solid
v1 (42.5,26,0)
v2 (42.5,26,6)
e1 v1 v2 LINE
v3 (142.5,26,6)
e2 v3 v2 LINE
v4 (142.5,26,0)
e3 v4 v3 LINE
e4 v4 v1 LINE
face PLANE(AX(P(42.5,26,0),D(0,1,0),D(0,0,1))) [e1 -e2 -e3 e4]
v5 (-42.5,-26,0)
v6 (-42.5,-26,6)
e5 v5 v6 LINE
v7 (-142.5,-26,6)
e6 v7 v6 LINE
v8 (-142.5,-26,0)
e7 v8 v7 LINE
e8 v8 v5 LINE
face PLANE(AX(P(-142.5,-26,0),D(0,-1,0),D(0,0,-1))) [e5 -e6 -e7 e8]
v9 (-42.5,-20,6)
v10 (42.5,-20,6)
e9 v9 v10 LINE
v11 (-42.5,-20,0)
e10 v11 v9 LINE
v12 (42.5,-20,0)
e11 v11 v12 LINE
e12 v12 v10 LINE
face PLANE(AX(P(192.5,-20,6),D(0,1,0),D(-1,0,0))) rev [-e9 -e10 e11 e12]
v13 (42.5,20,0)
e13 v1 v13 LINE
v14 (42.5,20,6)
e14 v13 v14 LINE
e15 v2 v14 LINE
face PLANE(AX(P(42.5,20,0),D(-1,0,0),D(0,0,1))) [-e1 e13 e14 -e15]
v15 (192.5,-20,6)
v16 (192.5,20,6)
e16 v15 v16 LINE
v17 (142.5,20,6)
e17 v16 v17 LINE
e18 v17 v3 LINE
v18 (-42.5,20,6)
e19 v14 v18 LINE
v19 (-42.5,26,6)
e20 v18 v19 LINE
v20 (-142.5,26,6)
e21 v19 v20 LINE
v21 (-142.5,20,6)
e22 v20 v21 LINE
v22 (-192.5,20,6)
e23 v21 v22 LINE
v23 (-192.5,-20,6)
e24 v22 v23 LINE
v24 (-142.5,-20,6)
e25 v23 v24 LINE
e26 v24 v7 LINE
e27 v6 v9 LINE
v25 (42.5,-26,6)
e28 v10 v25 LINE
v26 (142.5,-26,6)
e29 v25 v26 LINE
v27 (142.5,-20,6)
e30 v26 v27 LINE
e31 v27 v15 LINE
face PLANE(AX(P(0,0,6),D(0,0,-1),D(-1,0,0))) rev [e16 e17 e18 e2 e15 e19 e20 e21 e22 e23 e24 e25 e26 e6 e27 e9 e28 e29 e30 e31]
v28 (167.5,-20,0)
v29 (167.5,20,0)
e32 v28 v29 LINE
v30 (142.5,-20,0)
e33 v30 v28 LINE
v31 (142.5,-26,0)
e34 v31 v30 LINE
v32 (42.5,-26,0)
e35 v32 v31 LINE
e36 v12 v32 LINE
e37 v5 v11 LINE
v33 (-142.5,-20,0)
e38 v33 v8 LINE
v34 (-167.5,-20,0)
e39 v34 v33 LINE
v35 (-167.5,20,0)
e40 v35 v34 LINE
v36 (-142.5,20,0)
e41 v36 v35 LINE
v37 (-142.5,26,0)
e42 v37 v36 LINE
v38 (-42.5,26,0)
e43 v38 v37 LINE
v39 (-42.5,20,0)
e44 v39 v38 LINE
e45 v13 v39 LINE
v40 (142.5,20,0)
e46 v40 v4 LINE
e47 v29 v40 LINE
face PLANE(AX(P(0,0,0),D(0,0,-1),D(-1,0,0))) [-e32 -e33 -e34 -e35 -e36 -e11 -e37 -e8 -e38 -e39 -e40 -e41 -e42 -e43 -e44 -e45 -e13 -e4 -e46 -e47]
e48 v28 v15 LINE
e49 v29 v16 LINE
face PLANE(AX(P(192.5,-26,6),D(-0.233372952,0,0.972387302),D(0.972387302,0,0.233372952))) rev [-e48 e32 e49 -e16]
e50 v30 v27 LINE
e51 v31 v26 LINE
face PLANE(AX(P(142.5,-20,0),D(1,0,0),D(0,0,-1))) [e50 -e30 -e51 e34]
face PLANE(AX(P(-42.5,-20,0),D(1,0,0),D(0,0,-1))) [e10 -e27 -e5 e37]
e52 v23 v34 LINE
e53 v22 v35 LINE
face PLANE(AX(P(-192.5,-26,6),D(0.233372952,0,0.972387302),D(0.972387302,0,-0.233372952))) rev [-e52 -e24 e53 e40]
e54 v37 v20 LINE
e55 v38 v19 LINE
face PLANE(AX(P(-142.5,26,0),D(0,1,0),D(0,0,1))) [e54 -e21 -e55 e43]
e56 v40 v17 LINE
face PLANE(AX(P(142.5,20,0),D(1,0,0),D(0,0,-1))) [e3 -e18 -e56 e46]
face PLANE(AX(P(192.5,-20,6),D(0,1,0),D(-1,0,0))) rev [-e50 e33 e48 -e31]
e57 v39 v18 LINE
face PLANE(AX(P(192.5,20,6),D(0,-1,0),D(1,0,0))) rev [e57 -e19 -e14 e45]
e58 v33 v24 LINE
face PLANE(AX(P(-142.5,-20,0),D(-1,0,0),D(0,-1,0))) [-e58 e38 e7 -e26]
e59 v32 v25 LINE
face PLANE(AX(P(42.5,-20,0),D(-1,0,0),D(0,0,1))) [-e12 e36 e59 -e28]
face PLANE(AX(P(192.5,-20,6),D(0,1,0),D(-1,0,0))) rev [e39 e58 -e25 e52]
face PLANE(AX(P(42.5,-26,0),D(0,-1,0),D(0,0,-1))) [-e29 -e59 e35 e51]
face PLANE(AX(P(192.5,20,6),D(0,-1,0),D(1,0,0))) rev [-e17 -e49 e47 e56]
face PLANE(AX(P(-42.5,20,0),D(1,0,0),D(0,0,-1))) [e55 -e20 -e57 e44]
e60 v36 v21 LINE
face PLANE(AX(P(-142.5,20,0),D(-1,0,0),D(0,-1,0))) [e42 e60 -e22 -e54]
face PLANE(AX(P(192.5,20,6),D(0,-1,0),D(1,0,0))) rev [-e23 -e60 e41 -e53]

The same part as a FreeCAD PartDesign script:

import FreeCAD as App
import Part
import Sketcher

V = App.Vector

doc = App.newDocument("Part")
params = doc.addObject("Spreadsheet::Sheet", "Params")
for row, (alias, value) in enumerate([
    ("sketch1_width", "385 mm"),
    ("sketch1_height", "40 mm"),
    ("pad1_length", "6 mm"),
    ("sketch2_width", "100 mm"),
    ("sketch2_height", "6 mm"),
    ("pad2_length", "6 mm"),
    ("sketch3_width", "25 mm"),
    ("sketch3_height", "6 mm"),
], start=1):
    params.set(f"A{row}", alias)
    params.set(f"B{row}", "=" + value)
    params.setAlias(f"B{row}", alias)

body = doc.addObject("PartDesign::Body", "Body")

sketch1 = body.newObject("Sketcher::SketchObject", "Sketch")
sketch1.AttachmentSupport = (doc.getObject("XY_Plane"), [""])
sketch1.MapMode = "FlatFace"
sketch1.addGeometry([
    Part.LineSegment(V(-192, 20, 0), V(-192, -20, 0)),
    Part.LineSegment(V(-192, -20, 0), V(192, -20, 0)),
    Part.LineSegment(V(192, -20, 0), V(192, 20, 0)),
    Part.LineSegment(V(192, 20, 0), V(-192, 20, 0)),
], False)
sketch1.addConstraint([
    Sketcher.Constraint("Coincident", 0, 2, 1, 1),
    Sketcher.Constraint("Coincident", 1, 2, 2, 1),
    Sketcher.Constraint("Coincident", 2, 2, 3, 1),
    Sketcher.Constraint("Coincident", 3, 2, 0, 1),
    Sketcher.Constraint("Vertical", 0),
    Sketcher.Constraint("Horizontal", 1),
    Sketcher.Constraint("Vertical", 2),
    Sketcher.Constraint("Horizontal", 3),
    Sketcher.Constraint("Symmetric", 0, 2, 2, 2, -1, 1),
    Sketcher.Constraint("DistanceX", 1, 1, 1, 2, 385.0),
    Sketcher.Constraint("DistanceY", 0, 2, 0, 1, 40.0),
])
sketch1.setExpression("Constraints[9]", "Params.sketch1_width")
sketch1.setExpression("Constraints[10]", "Params.sketch1_height")
pad1 = body.newObject("PartDesign::Pad", "Pad")
pad1.Profile = sketch1
pad1.setExpression("Length", "Params.pad1_length")

sketch2 = body.newObject("Sketcher::SketchObject", "Sketch001")
sketch2.AttachmentSupport = (doc.getObject("XY_Plane"), [""])
sketch2.MapMode = "FlatFace"
sketch2.AttachmentOffset = App.Placement(V(0, 0, 6), App.Rotation())
sketch2.addGeometry([
    Part.LineSegment(V(-142, 26, 0), V(-142, 20, 0)),
    Part.LineSegment(V(-142, 20, 0), V(-42, 20, 0)),
    Part.LineSegment(V(-42, 20, 0), V(-42, 26, 0)),
    Part.LineSegment(V(-42, 26, 0), V(-142, 26, 0)),
    Part.LineSegment(V(42, 26, 0), V(42, 20, 0)),
    Part.LineSegment(V(42, 20, 0), V(142, 20, 0)),
    Part.LineSegment(V(142, 20, 0), V(142, 26, 0)),
    Part.LineSegment(V(142, 26, 0), V(42, 26, 0)),
    Part.LineSegment(V(42, -20, 0), V(42, -26, 0)),
    Part.LineSegment(V(42, -26, 0), V(142, -26, 0)),
    Part.LineSegment(V(142, -26, 0), V(142, -20, 0)),
    Part.LineSegment(V(142, -20, 0), V(42, -20, 0)),
    Part.LineSegment(V(-142, -20, 0), V(-142, -26, 0)),
    Part.LineSegment(V(-142, -26, 0), V(-42, -26, 0)),
    Part.LineSegment(V(-42, -26, 0), V(-42, -20, 0)),
    Part.LineSegment(V(-42, -20, 0), V(-142, -20, 0)),
], False)
sketch2.addConstraint([
    Sketcher.Constraint("Coincident", 0, 2, 1, 1),
    Sketcher.Constraint("Coincident", 1, 2, 2, 1),
    Sketcher.Constraint("Coincident", 2, 2, 3, 1),
    Sketcher.Constraint("Coincident", 3, 2, 0, 1),
    Sketcher.Constraint("Coincident", 4, 2, 5, 1),
    Sketcher.Constraint("Coincident", 5, 2, 6, 1),
    Sketcher.Constraint("Coincident", 6, 2, 7, 1),
    Sketcher.Constraint("Coincident", 7, 2, 4, 1),
    Sketcher.Constraint("Coincident", 8, 2, 9, 1),
    Sketcher.Constraint("Coincident", 9, 2, 10, 1),
    Sketcher.Constraint("Coincident", 10, 2, 11, 1),
    Sketcher.Constraint("Coincident", 11, 2, 8, 1),
    Sketcher.Constraint("Coincident", 12, 2, 13, 1),
    Sketcher.Constraint("Coincident", 13, 2, 14, 1),
    Sketcher.Constraint("Coincident", 14, 2, 15, 1),
    Sketcher.Constraint("Coincident", 15, 2, 12, 1),
    Sketcher.Constraint("Vertical", 0),
    Sketcher.Constraint("Horizontal", 1),
    Sketcher.Constraint("Vertical", 2),
    Sketcher.Constraint("Horizontal", 3),
    Sketcher.Constraint("Vertical", 4),
    Sketcher.Constraint("Horizontal", 5),
    Sketcher.Constraint("Vertical", 6),
    Sketcher.Constraint("Horizontal", 7),
    Sketcher.Constraint("Vertical", 8),
    Sketcher.Constraint("Horizontal", 9),
    Sketcher.Constraint("Vertical", 10),
    Sketcher.Constraint("Horizontal", 11),
    Sketcher.Constraint("Vertical", 12),
    Sketcher.Constraint("Horizontal", 13),
    Sketcher.Constraint("Vertical", 14),
    Sketcher.Constraint("Horizontal", 15),
    Sketcher.Constraint("Symmetric", 2, 2, 8, 2, -1, 1),
    Sketcher.Constraint("Symmetric", 0, 2, 10, 2, -1, 1),
    Sketcher.Constraint("Symmetric", 6, 2, 12, 2, -1, 1),
    Sketcher.Constraint("Symmetric", 4, 2, 14, 2, -1, 1),
    Sketcher.Constraint("Symmetric", 1, 2, 4, 2, -2),
    Sketcher.Constraint("Symmetric", 3, 2, 6, 2, -2),
    Sketcher.Constraint("DistanceX", 1, 1, 1, 2, 100.0),
    Sketcher.Constraint("DistanceY", 0, 2, 0, 1, 6.0),
    Sketcher.Constraint("DistanceY", -1, 1, 0, 2, 20.0),
    Sketcher.Constraint("DistanceX", 1, 2, 4, 2, 85.0),
])
sketch2.setExpression("Constraints[38]", "Params.sketch2_width")
sketch2.setExpression("Constraints[39]", "Params.sketch2_height")
pad2 = body.newObject("PartDesign::Pad", "Pad001")
pad2.Profile = sketch2
pad2.setExpression("Length", "Params.pad2_length")
pad2.Reversed = True

sketch3 = body.newObject("Sketcher::SketchObject", "Sketch002")
sketch3.AttachmentSupport = (doc.getObject("XZ_Plane"), [""])
sketch3.MapMode = "FlatFace"
sketch3.AttachmentOffset = App.Placement(V(0, 0, -20), App.Rotation())
sketch3.addGeometry([
    Part.LineSegment(V(-192, 6, 0), V(-168, 0, 0)),
    Part.LineSegment(V(-168, 0, 0), V(-192, 0, 0)),
    Part.LineSegment(V(-192, 0, 0), V(-192, 6, 0)),
    Part.LineSegment(V(168, 0, 0), V(192, 6, 0)),
    Part.LineSegment(V(192, 6, 0), V(192, 0, 0)),
    Part.LineSegment(V(192, 0, 0), V(168, 0, 0)),
], False)
sketch3.addConstraint([
    Sketcher.Constraint("Coincident", 0, 2, 1, 1),
    Sketcher.Constraint("Coincident", 1, 2, 2, 1),
    Sketcher.Constraint("Coincident", 2, 2, 0, 1),
    Sketcher.Constraint("Coincident", 3, 2, 4, 1),
    Sketcher.Constraint("Coincident", 4, 2, 5, 1),
    Sketcher.Constraint("Coincident", 5, 2, 3, 1),
    Sketcher.Constraint("Horizontal", 1),
    Sketcher.Constraint("Vertical", 2),
    Sketcher.Constraint("Vertical", 4),
    Sketcher.Constraint("Horizontal", 5),
    Sketcher.Constraint("Symmetric", 1, 2, 4, 2, -1, 1),
    Sketcher.Constraint("Symmetric", 0, 2, 5, 2, -2),
    Sketcher.Constraint("Horizontal", 2, 2, 3, 2),
    Sketcher.Constraint("DistanceX", 1, 2, 1, 1, 25.0),
    Sketcher.Constraint("DistanceY", 2, 1, 2, 2, 6.0),
    Sketcher.Constraint("DistanceX", 0, 2, 3, 2, 360.0),
])
sketch3.setExpression("Constraints[13]", "Params.sketch3_width")
sketch3.setExpression("Constraints[14]", "Params.sketch3_height")
pocket1 = body.newObject("PartDesign::Pocket", "Pocket")
pocket1.Profile = sketch3
pocket1.Type = "ThroughAll"
pocket1.Reversed = True

doc.recompute()
